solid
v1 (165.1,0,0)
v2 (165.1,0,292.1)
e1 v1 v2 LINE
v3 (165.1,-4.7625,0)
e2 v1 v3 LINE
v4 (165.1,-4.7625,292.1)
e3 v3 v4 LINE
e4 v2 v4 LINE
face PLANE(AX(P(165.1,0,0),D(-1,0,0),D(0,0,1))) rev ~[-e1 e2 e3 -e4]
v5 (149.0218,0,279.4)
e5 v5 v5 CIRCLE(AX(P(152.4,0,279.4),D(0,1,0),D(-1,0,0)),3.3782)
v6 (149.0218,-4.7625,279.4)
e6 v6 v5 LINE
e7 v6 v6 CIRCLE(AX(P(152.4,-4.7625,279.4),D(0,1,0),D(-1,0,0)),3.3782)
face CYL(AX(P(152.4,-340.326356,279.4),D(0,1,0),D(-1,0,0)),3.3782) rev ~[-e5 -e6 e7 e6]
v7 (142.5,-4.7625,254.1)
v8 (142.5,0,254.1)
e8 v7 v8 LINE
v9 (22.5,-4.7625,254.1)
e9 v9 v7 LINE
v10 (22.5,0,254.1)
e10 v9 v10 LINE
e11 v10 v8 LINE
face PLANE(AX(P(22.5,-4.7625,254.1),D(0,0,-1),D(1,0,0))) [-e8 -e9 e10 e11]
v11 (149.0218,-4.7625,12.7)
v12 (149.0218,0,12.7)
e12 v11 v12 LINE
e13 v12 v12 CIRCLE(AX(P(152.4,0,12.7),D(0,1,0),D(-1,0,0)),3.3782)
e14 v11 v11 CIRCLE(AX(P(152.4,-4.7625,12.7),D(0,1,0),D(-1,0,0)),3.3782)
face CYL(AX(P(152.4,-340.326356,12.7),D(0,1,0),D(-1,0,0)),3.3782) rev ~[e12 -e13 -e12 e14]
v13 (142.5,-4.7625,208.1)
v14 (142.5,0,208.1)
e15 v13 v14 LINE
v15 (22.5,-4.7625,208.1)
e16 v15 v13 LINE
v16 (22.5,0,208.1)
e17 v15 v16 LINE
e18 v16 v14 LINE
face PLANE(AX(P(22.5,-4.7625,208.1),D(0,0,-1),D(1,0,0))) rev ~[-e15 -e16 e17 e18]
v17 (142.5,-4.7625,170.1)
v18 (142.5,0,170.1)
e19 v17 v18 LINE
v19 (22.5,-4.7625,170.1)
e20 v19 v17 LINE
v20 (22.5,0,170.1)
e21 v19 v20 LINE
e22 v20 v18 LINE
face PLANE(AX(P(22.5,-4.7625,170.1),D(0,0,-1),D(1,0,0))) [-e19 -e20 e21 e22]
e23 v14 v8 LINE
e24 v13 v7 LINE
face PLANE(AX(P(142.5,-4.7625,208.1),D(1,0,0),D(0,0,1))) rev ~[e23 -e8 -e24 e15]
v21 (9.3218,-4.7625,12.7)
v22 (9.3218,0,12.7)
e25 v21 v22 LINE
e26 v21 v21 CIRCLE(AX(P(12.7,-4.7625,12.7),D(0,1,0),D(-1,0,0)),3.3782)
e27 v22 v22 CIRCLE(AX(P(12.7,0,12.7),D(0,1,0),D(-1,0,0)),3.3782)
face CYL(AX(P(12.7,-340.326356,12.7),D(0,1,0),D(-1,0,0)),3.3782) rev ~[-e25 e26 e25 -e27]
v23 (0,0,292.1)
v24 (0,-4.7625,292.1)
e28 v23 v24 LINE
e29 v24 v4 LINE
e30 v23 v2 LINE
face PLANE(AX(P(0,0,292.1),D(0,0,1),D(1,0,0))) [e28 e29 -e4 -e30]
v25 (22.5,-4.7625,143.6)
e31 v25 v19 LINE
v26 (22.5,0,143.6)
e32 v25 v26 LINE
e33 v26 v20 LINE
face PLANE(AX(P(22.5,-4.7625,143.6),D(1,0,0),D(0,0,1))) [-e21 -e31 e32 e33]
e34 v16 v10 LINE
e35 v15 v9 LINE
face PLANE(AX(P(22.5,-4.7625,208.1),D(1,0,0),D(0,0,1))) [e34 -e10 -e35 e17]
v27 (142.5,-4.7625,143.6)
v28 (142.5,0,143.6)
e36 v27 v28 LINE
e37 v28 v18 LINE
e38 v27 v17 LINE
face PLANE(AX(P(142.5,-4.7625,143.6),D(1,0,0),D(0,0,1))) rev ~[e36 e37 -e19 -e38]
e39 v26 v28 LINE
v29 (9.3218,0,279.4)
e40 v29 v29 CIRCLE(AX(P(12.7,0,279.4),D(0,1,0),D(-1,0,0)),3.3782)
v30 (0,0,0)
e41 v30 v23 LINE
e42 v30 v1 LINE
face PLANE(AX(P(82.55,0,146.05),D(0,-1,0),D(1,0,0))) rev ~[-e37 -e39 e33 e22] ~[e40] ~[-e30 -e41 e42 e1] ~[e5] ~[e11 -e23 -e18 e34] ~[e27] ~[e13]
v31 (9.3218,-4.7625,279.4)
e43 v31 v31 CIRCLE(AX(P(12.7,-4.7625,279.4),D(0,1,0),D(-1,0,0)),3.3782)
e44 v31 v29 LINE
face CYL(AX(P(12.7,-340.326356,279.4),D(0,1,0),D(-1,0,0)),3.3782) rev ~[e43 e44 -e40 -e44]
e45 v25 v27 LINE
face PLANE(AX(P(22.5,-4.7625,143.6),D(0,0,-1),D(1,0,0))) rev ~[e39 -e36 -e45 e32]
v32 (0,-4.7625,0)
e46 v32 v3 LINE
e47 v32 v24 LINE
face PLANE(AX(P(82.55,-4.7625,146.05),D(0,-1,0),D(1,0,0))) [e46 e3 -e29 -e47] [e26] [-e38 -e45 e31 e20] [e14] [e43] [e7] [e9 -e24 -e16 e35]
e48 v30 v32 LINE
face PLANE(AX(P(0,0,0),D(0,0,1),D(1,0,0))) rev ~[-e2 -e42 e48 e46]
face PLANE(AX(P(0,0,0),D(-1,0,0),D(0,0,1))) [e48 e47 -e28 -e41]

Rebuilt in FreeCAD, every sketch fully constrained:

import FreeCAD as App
import Part
import Sketcher
Q = App.Units.Quantity

doc = App.newDocument("Part")
body = doc.addObject("PartDesign::Body", "Body")

sketch1 = body.newObject("Sketcher::SketchObject", "Sketch")
sketch1.AttachmentSupport = (doc.getObject("XZ_Plane"), [""])
sketch1.MapMode = "FlatFace"
sketch1.addGeometry([
    Part.LineSegment(App.Vector(0, 292, 0), App.Vector(0, 0, 0)),
    Part.LineSegment(App.Vector(0, 0, 0), App.Vector(165, 0, 0)),
    Part.LineSegment(App.Vector(165, 0, 0), App.Vector(165, 292, 0)),
    Part.LineSegment(App.Vector(165, 292, 0), App.Vector(0, 292, 0)),
], False)
sketch1.addConstraint([
    Sketcher.Constraint("Coincident", 0, 2, 1, 1),
    Sketcher.Constraint("Coincident", 1, 2, 2, 1),
    Sketcher.Constraint("Coincident", 2, 2, 3, 1),
    Sketcher.Constraint("Coincident", 3, 2, 0, 1),
    Sketcher.Constraint("Vertical", 0),
    Sketcher.Constraint("Horizontal", 1),
    Sketcher.Constraint("Vertical", 2),
    Sketcher.Constraint("Horizontal", 3),
    Sketcher.Constraint("Coincident", 0, 2, -1, 1),
    Sketcher.Constraint("DistanceX", 1, 1, 1, 2, Q("6.5 in")),
    Sketcher.Constraint("DistanceY", 0, 2, 0, 1, Q("11.5 in")),
])
pad1 = body.newObject("PartDesign::Pad", "Pad")
pad1.Profile = sketch1
pad1.Length = Q("0.1875 in")

sketch2 = body.newObject("Sketcher::SketchObject", "Sketch001")
sketch2.AttachmentSupport = (doc.getObject("XZ_Plane"), [""])
sketch2.MapMode = "FlatFace"
sketch2.AttachmentOffset = App.Placement(App.Vector(0, 0, 0.1875 * 25.4), App.Rotation())
sketch2.addGeometry([
    Part.Circle(App.Vector(12.7, 279.4, 0), App.Vector(0, 0, 1), 3.4),
    Part.Circle(App.Vector(152.4, 279.4, 0), App.Vector(0, 0, 1), 3.4),
    Part.Circle(App.Vector(12.7, 12.7, 0), App.Vector(0, 0, 1), 3.4),
    Part.Circle(App.Vector(152.4, 12.7, 0), App.Vector(0, 0, 1), 3.4),
], False)
sketch2.addConstraint([
    Sketcher.Constraint("Equal", 0, 1),
    Sketcher.Constraint("Equal", 1, 2),
    Sketcher.Constraint("Equal", 2, 3),
    Sketcher.Constraint("Horizontal", 0, 3, 1, 3),
    Sketcher.Constraint("Horizontal", 2, 3, 3, 3),
    Sketcher.Constraint("Vertical", 0, 3, 2, 3),
    Sketcher.Constraint("Vertical", 1, 3, 3, 3),
    Sketcher.Constraint("Diameter", 0, Q("0.266 in")),
    Sketcher.Constraint("DistanceY", -1, 1, 0, 3, Q("11 in")),
    Sketcher.Constraint("DistanceX", -1, 1, 1, 3, Q("6 in")),
    Sketcher.Constraint("DistanceX", -1, 1, 0, 3, Q("0.5 in")),
    Sketcher.Constraint("DistanceY", -1, 1, 2, 3, Q("0.5 in")),
])
doc.recompute()
hole = body.newObject("PartDesign::Hole", "Hole")
hole.Profile = sketch2
hole.ThreadType = "None"
hole.Diameter = Q("0.266 in")
hole.DepthType = "ThroughAll"

sketch3 = body.newObject("Sketcher::SketchObject", "Sketch002")
sketch3.AttachmentSupport = (doc.getObject("XZ_Plane"), [""])
sketch3.MapMode = "FlatFace"
sketch3.AttachmentOffset = App.Placement(App.Vector(0, 0, 0.1875 * 25.4), App.Rotation())
sketch3.addGeometry([
    Part.LineSegment(App.Vector(22, 254, 0), App.Vector(22, 208, 0)),
    Part.LineSegment(App.Vector(22, 208, 0), App.Vector(142, 208, 0)),
    Part.LineSegment(App.Vector(142, 208, 0), App.Vector(142, 254, 0)),
    Part.LineSegment(App.Vector(142, 254, 0), App.Vector(22, 254, 0)),
    Part.LineSegment(App.Vector(22, 170, 0), App.Vector(22, 144, 0)),
    Part.LineSegment(App.Vector(22, 144, 0), App.Vector(142, 144, 0)),
    Part.LineSegment(App.Vector(142, 144, 0), App.Vector(142, 170, 0)),
    Part.LineSegment(App.Vector(142, 170, 0), App.Vector(22, 170, 0)),
], False)
sketch3.addConstraint([
    Sketcher.Constraint("Coincident", 0, 2, 1, 1),
    Sketcher.Constraint("Coincident", 1, 2, 2, 1),
    Sketcher.Constraint("Coincident", 2, 2, 3, 1),
    Sketcher.Constraint("Coincident", 3, 2, 0, 1),
    Sketcher.Constraint("Coincident", 4, 2, 5, 1),
    Sketcher.Constraint("Coincident", 5, 2, 6, 1),
    Sketcher.Constraint("Coincident", 6, 2, 7, 1),
    Sketcher.Constraint("Coincident", 7, 2, 4, 1),
    Sketcher.Constraint("Vertical", 0),
    Sketcher.Constraint("Horizontal", 1),
    Sketcher.Constraint("Vertical", 2),
    Sketcher.Constraint("Horizontal", 3),
    Sketcher.Constraint("Vertical", 4),
    Sketcher.Constraint("Horizontal", 5),
    Sketcher.Constraint("Vertical", 6),
    Sketcher.Constraint("Horizontal", 7),
    Sketcher.Constraint("Vertical", 3, 2, 4, 2),
    Sketcher.Constraint("Vertical", 2, 2, 5, 2),
    Sketcher.Constraint("DistanceX", 1, 1, 1, 2, 120.0),
    Sketcher.Constraint("DistanceY", 0, 2, 0, 1, 46.0),
    Sketcher.Constraint("DistanceY", 4, 2, 4, 1, 26.5),
    Sketcher.Constraint("DistanceX", -1, 1, 0, 2, 22.5),
    Sketcher.Constraint("DistanceY", -1, 1, 0, 2, 208.1),
    Sketcher.Constraint("DistanceY", -1, 1, 4, 2, 143.6),
])
pocket1 = body.newObject("PartDesign::Pocket", "Pocket")
pocket1.Profile = sketch3
pocket1.Type = "ThroughAll"

doc.recompute()
